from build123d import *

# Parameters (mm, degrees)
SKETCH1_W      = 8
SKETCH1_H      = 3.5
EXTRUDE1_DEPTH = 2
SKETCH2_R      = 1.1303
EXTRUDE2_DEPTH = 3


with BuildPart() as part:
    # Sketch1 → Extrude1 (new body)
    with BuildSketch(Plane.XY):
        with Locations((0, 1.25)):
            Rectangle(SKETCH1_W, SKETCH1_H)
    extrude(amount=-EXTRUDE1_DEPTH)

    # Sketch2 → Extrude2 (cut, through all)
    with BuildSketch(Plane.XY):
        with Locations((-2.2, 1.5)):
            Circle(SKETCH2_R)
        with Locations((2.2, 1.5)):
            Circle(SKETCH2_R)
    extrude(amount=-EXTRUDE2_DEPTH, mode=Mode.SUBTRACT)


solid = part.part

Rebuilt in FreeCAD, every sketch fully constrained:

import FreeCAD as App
import Part
import Sketcher
Q = App.Units.Quantity


def add_polygon(sketch, points):
    """Adds a closed chain of lines whose ends are joined by coincident constraints."""
    first, n = sketch.GeometryCount, len(points)
    for a, b in zip(points, points[1:] + points[:1]):
        sketch.addGeometry(Part.LineSegment(App.Vector(*a, 0), App.Vector(*b, 0)), False)
    for i in range(n):
        sketch.addConstraint(Sketcher.Constraint("Coincident", first + i, 2, first + (i + 1) % n, 1))

doc = App.newDocument("Part")
body = doc.addObject("PartDesign::Body", "Body")

# Sketch on XY plane
sketch1 = doc.addObject("Sketcher::SketchObject", "Sketch")
body.addObject(sketch1)
sketch1.AttachmentSupport = (doc.XY_Plane, [""])
sketch1.MapMode = "FlatFace"
add_polygon(sketch1, [(-4, 3), (-4, -0.5), (4, -0.5), (4, 3)])  # lines 0-3
sketch1.addConstraint([
    Sketcher.Constraint("Vertical", 0),
    Sketcher.Constraint("Horizontal", 1),
    Sketcher.Constraint("Vertical", 2),
    Sketcher.Constraint("Horizontal", 3),
    Sketcher.Constraint("DistanceX", 1, 1, 1, 2, Q("8 mm")),
    Sketcher.Constraint("DistanceY", 0, 2, 0, 1, Q("3.5 mm")),
    Sketcher.Constraint("DistanceX", 0, 2, -1, 1, Q("4 mm")),
    Sketcher.Constraint("DistanceY", -1, 1, 2, 2, Q("3 mm")),
])
pad1 = doc.addObject("PartDesign::Pad", "Pad")
body.addObject(pad1)
pad1.Profile = sketch1
pad1.Length = 2
pad1.Reversed = True

# Sketch on XY plane
sketch2 = doc.addObject("Sketcher::SketchObject", "Sketch001")
body.addObject(sketch2)
sketch2.AttachmentSupport = (doc.XY_Plane, [""])
sketch2.MapMode = "FlatFace"
sketch2.addGeometry([
    Part.Circle(App.Vector(-2.2, 1.5, 0), App.Vector(0, 0, 1), 1.1),
    Part.Circle(App.Vector(2.2, 1.5, 0), App.Vector(0, 0, 1), 1.1),
], False)
sketch2.addConstraint([
    Sketcher.Constraint("Equal", 0, 1),
    Sketcher.Constraint("Symmetric", 0, 3, 1, 3, -2),
    Sketcher.Constraint("Diameter", 0, Q("2.2606 mm")),
    Sketcher.Constraint("DistanceX", 0, 3, -1, 1, Q("2.2 mm")),
    Sketcher.Constraint("DistanceY", -1, 1, 0, 3, Q("1.5 mm")),
])
pocket1 = doc.addObject("PartDesign::Pocket", "Pocket")
body.addObject(pocket1)
pocket1.Profile = sketch2
pocket1.Type = "ThroughAll"

doc.recompute()
